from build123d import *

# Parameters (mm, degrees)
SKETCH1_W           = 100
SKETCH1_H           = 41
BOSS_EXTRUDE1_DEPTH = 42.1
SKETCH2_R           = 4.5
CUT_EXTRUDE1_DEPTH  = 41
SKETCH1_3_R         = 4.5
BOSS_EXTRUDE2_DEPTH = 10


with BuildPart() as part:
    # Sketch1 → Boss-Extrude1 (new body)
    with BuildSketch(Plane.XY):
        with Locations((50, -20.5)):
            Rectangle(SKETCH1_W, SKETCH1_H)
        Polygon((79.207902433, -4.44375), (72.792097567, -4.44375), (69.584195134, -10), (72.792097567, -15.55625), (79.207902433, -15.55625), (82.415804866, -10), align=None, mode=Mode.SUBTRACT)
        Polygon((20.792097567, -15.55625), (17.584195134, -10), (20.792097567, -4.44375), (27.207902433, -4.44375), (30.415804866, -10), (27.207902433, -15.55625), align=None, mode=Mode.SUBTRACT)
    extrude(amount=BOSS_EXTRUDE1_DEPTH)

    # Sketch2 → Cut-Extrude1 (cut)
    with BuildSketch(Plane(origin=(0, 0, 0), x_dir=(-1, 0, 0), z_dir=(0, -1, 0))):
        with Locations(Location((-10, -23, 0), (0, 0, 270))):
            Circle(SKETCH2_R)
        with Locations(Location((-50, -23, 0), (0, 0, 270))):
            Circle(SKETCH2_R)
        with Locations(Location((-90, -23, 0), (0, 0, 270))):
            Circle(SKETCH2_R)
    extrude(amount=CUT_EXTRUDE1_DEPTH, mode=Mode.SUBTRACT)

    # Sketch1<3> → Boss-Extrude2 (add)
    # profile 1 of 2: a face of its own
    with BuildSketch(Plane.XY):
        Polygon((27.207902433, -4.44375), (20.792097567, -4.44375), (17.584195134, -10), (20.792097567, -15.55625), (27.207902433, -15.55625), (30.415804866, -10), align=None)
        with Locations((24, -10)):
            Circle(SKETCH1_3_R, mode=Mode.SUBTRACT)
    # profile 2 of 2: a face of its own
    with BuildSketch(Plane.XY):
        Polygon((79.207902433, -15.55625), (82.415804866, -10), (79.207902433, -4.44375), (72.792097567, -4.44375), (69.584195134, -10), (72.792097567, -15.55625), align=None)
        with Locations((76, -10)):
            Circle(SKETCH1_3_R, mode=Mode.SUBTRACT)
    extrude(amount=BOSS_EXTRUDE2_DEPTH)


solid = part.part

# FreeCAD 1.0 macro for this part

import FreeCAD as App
import Part
import Sketcher
Q = App.Units.Quantity

doc = App.newDocument("Part")
body = doc.addObject("PartDesign::Body", "Body")

sketch1 = doc.addObject("Sketcher::SketchObject", "Sketch")
body.addObject(sketch1)
sketch1.AttachmentSupport = (doc.XY_Plane, [""])
sketch1.MapMode = "FlatFace"
sketch1.addGeometry(Part.LineSegment(App.Vector(0, 0, 0), App.Vector(0, -41, 0)), False)
sketch1.addGeometry(Part.LineSegment(App.Vector(0, -41, 0), App.Vector(100, -41, 0)), False)
sketch1.addGeometry(Part.LineSegment(App.Vector(100, -41, 0), App.Vector(100, 0, 0)), False)
sketch1.addGeometry(Part.LineSegment(App.Vector(100, 0, 0), App.Vector(0, 0, 0)), False)
sketch1.addGeometry(Part.LineSegment(App.Vector(27, -16, 0), App.Vector(21, -16, 0)), False)
sketch1.addGeometry(Part.LineSegment(App.Vector(21, -16, 0), App.Vector(18, -10, 0)), False)
sketch1.addGeometry(Part.LineSegment(App.Vector(18, -10, 0), App.Vector(21, -4, 0)), False)
sketch1.addGeometry(Part.LineSegment(App.Vector(21, -4, 0), App.Vector(27, -4, 0)), False)
sketch1.addGeometry(Part.LineSegment(App.Vector(27, -4, 0), App.Vector(30, -10, 0)), False)
sketch1.addGeometry(Part.LineSegment(App.Vector(30, -10, 0), App.Vector(27, -16, 0)), False)
sketch1.addGeometry(Part.LineSegment(App.Vector(73, -4, 0), App.Vector(79, -4, 0)), False)
sketch1.addGeometry(Part.LineSegment(App.Vector(79, -4, 0), App.Vector(82, -10, 0)), False)
sketch1.addGeometry(Part.LineSegment(App.Vector(82, -10, 0), App.Vector(79, -16, 0)), False)
sketch1.addGeometry(Part.LineSegment(App.Vector(79, -16, 0), App.Vector(73, -16, 0)), False)
sketch1.addGeometry(Part.LineSegment(App.Vector(73, -16, 0), App.Vector(70, -10, 0)), False)
sketch1.addGeometry(Part.LineSegment(App.Vector(70, -10, 0), App.Vector(73, -4, 0)), False)
sketch1.addConstraint(Sketcher.Constraint("Coincident", 0, 2, 1, 1))
sketch1.addConstraint(Sketcher.Constraint("Coincident", 1, 2, 2, 1))
sketch1.addConstraint(Sketcher.Constraint("Coincident", 2, 2, 3, 1))
sketch1.addConstraint(Sketcher.Constraint("Coincident", 3, 2, 0, 1))
sketch1.addConstraint(Sketcher.Constraint("Coincident", 4, 2, 5, 1))
sketch1.addConstraint(Sketcher.Constraint("Coincident", 5, 2, 6, 1))
sketch1.addConstraint(Sketcher.Constraint("Coincident", 6, 2, 7, 1))
sketch1.addConstraint(Sketcher.Constraint("Coincident", 7, 2, 8, 1))
sketch1.addConstraint(Sketcher.Constraint("Coincident", 8, 2, 9, 1))
sketch1.addConstraint(Sketcher.Constraint("Coincident", 9, 2, 4, 1))
sketch1.addConstraint(Sketcher.Constraint("Coincident", 10, 2, 11, 1))
sketch1.addConstraint(Sketcher.Constraint("Coincident", 11, 2, 12, 1))
sketch1.addConstraint(Sketcher.Constraint("Coincident", 12, 2, 13, 1))
sketch1.addConstraint(Sketcher.Constraint("Coincident", 13, 2, 14, 1))
sketch1.addConstraint(Sketcher.Constraint("Coincident", 14, 2, 15, 1))
sketch1.addConstraint(Sketcher.Constraint("Coincident", 15, 2, 10, 1))
sketch1.addConstraint(Sketcher.Constraint("Vertical", 0))
sketch1.addConstraint(Sketcher.Constraint("Horizontal", 1))
sketch1.addConstraint(Sketcher.Constraint("Vertical", 2))
sketch1.addConstraint(Sketcher.Constraint("Horizontal", 3))
sketch1.addConstraint(Sketcher.Constraint("Horizontal", 4))
sketch1.addConstraint(Sketcher.Constraint("Horizontal", 7))
sketch1.addConstraint(Sketcher.Constraint("Horizontal", 10))
sketch1.addConstraint(Sketcher.Constraint("Horizontal", 13))
sketch1.addConstraint(Sketcher.Constraint("Coincident", 3, 2, -1, 1))
sketch1.addConstraint(Sketcher.Constraint("Parallel", 5, 8))
sketch1.addConstraint(Sketcher.Constraint("Parallel", 6, 9))
sketch1.addConstraint(Sketcher.Constraint("Parallel", 8, 11))
sketch1.addConstraint(Sketcher.Constraint("Parallel", 9, 12))
sketch1.addConstraint(Sketcher.Constraint("Parallel", 11, 14))
sketch1.addConstraint(Sketcher.Constraint("Parallel", 12, 15))
sketch1.addConstraint(Sketcher.Constraint("Horizontal", 5, 2, 8, 2))
sketch1.addConstraint(Sketcher.Constraint("Horizontal", 7, 2, 10, 2))
sketch1.addConstraint(Sketcher.Constraint("Horizontal", 8, 2, 11, 2))
sketch1.addConstraint(Sketcher.Constraint("Horizontal", 9, 2, 12, 2))
sketch1.addConstraint(Sketcher.Constraint("Horizontal", 11, 2, 14, 2))
sketch1.addConstraint(Sketcher.Constraint("Vertical", 4, 2, 6, 2))
sketch1.addConstraint(Sketcher.Constraint("Vertical", 7, 2, 9, 2))
sketch1.addConstraint(Sketcher.Constraint("Equal", 7, 10))
sketch1.addConstraint(Sketcher.Constraint("DistanceX", 1, 1, 1, 2, Q("100 mm")))
sketch1.addConstraint(Sketcher.Constraint("DistanceY", 0, 2, 0, 1, Q("41 mm")))
sketch1.addConstraint(Sketcher.Constraint("Angle", 5, Q("120 deg")))
sketch1.addConstraint(Sketcher.Constraint("DistanceY", 5, 2, -1, 1, Q("10 mm")))
sketch1.addConstraint(Sketcher.Constraint("DistanceX", 7, 2, 10, 2, Q("52 mm")))
sketch1.addConstraint(Sketcher.Constraint("DistanceY", 4, 2, 6, 2, Q("11.1125 mm")))
sketch1.addConstraint(Sketcher.Constraint("DistanceX", 4, 2, 4, 1, Q("6.415805 mm")))
sketch1.addConstraint(Sketcher.Constraint("DistanceX", -1, 1, 4, 2, Q("20.792098 mm")))
pad1 = doc.addObject("PartDesign::Pad", "Pad")
body.addObject(pad1)
pad1.Profile = sketch1
pad1.Length = 42.1

sketch2 = doc.addObject("Sketcher::SketchObject", "Sketch001")
body.addObject(sketch2)
sketch2.AttachmentSupport = (doc.XZ_Plane, [""])
sketch2.MapMode = "FlatFace"
sketch2.addGeometry(Part.Circle(App.Vector(10, 23, 0), App.Vector(0, 0, 1), 4.5), False)
sketch2.addGeometry(Part.Circle(App.Vector(50, 23, 0), App.Vector(0, 0, 1), 4.5), False)
sketch2.addGeometry(Part.Circle(App.Vector(90, 23, 0), App.Vector(0, 0, 1), 4.5), False)
sketch2.addConstraint(Sketcher.Constraint("Equal", 0, 1))
sketch2.addConstraint(Sketcher.Constraint("Equal", 1, 2))
sketch2.addConstraint(Sketcher.Constraint("Horizontal", 0, 3, 1, 3))
sketch2.addConstraint(Sketcher.Constraint("Horizontal", 1, 3, 2, 3))
sketch2.addConstraint(Sketcher.Constraint("Diameter", 0, Q("9 mm")))
sketch2.addConstraint(Sketcher.Constraint("DistanceX", -1, 1, 0, 3, Q("10 mm")))
sketch2.addConstraint(Sketcher.Constraint("DistanceY", -1, 1, 0, 3, Q("23 mm")))
sketch2.addConstraint(Sketcher.Constraint("DistanceX", -1, 1, 1, 3, Q("50 mm")))
sketch2.addConstraint(Sketcher.Constraint("DistanceX", -1, 1, 2, 3, Q("90 mm")))
pocket1 = doc.addObject("PartDesign::Pocket", "Pocket")
body.addObject(pocket1)
pocket1.Profile = sketch2
pocket1.Length = 41
pocket1.Reversed = True

sketch3 = doc.addObject("Sketcher::SketchObject", "Sketch002")
body.addObject(sketch3)
sketch3.AttachmentSupport = (doc.XY_Plane, [""])
sketch3.MapMode = "FlatFace"
sketch3.addGeometry(Part.LineSegment(App.Vector(27.2, -4.4, 0), App.Vector(20.8, -4.4, 0)), False)
sketch3.addGeometry(Part.LineSegment(App.Vector(20.8, -4.4, 0), App.Vector(17.6, -10, 0)), False)
sketch3.addGeometry(Part.LineSegment(App.Vector(17.6, -10, 0), App.Vector(20.8, -15.6, 0)), False)
sketch3.addGeometry(Part.LineSegment(App.Vector(20.8, -15.6, 0), App.Vector(27.2, -15.6, 0)), False)
sketch3.addGeometry(Part.LineSegment(App.Vector(27.2, -15.6, 0), App.Vector(30.4, -10, 0)), False)
sketch3.addGeometry(Part.LineSegment(App.Vector(30.4, -10, 0), App.Vector(27.2, -4.4, 0)), False)
sketch3.addGeometry(Part.Circle(App.Vector(24, -10, 0), App.Vector(0, 0, 1), 4.5), False)
sketch3.addGeometry(Part.LineSegment(App.Vector(79.2, -15.6, 0), App.Vector(82.4, -10, 0)), False)
sketch3.addGeometry(Part.LineSegment(App.Vector(82.4, -10, 0), App.Vector(79.2, -4.4, 0)), False)
sketch3.addGeometry(Part.LineSegment(App.Vector(79.2, -4.4, 0), App.Vector(72.8, -4.4, 0)), False)
sketch3.addGeometry(Part.LineSegment(App.Vector(72.8, -4.4, 0), App.Vector(69.6, -10, 0)), False)
sketch3.addGeometry(Part.LineSegment(App.Vector(69.6, -10, 0), App.Vector(72.8, -15.6, 0)), False)
sketch3.addGeometry(Part.LineSegment(App.Vector(72.8, -15.6, 0), App.Vector(79.2, -15.6, 0)), False)
sketch3.addGeometry(Part.Circle(App.Vector(76, -10, 0), App.Vector(0, 0, 1), 4.5), False)
sketch3.addConstraint(Sketcher.Constraint("Coincident", 0, 2, 1, 1))
sketch3.addConstraint(Sketcher.Constraint("Coincident", 1, 2, 2, 1))
sketch3.addConstraint(Sketcher.Constraint("Coincident", 2, 2, 3, 1))
sketch3.addConstraint(Sketcher.Constraint("Coincident", 3, 2, 4, 1))
sketch3.addConstraint(Sketcher.Constraint("Coincident", 4, 2, 5, 1))
sketch3.addConstraint(Sketcher.Constraint("Coincident", 5, 2, 0, 1))
sketch3.addConstraint(Sketcher.Constraint("Coincident", 7, 2, 8, 1))
sketch3.addConstraint(Sketcher.Constraint("Coincident", 8, 2, 9, 1))
sketch3.addConstraint(Sketcher.Constraint("Coincident", 9, 2, 10, 1))
sketch3.addConstraint(Sketcher.Constraint("Coincident", 10, 2, 11, 1))
sketch3.addConstraint(Sketcher.Constraint("Coincident", 11, 2, 12, 1))
sketch3.addConstraint(Sketcher.Constraint("Coincident", 12, 2, 7, 1))
sketch3.addConstraint(Sketcher.Constraint("Horizontal", 0))
sketch3.addConstraint(Sketcher.Constraint("Horizontal", 3))
sketch3.addConstraint(Sketcher.Constraint("Horizontal", 9))
sketch3.addConstraint(Sketcher.Constraint("Horizontal", 12))
sketch3.addConstraint(Sketcher.Constraint("Equal", 6, 13))
sketch3.addConstraint(Sketcher.Constraint("Parallel", 1, 4))
sketch3.addConstraint(Sketcher.Constraint("Parallel", 2, 5))
sketch3.addConstraint(Sketcher.Constraint("Parallel", 4, 7))
sketch3.addConstraint(Sketcher.Constraint("Parallel", 5, 8))
sketch3.addConstraint(Sketcher.Constraint("Parallel", 7, 10))
sketch3.addConstraint(Sketcher.Constraint("Parallel", 8, 11))
sketch3.addConstraint(Sketcher.Constraint("Horizontal", 6, 3, 13, 3))
sketch3.addConstraint(Sketcher.Constraint("Horizontal", 13, 3, 1, 2))
sketch3.addConstraint(Sketcher.Constraint("Horizontal", 1, 2, 4, 2))
sketch3.addConstraint(Sketcher.Constraint("Horizontal", 4, 2, 7, 2))
sketch3.addConstraint(Sketcher.Constraint("Horizontal", 5, 2, 8, 2))
sketch3.addConstraint(Sketcher.Constraint("Horizontal", 7, 2, 10, 2))
sketch3.addConstraint(Sketcher.Constraint("Horizontal", 3, 2, 11, 2))
sketch3.addConstraint(Sketcher.Constraint("Vertical", 0, 2, 2, 2))
sketch3.addConstraint(Sketcher.Constraint("Vertical", 3, 2, 5, 2))
sketch3.addConstraint(Sketcher.Constraint("Equal", 3, 9))
sketch3.addConstraint(Sketcher.Constraint("Diameter", 6, Q("9 mm")))
sketch3.addConstraint(Sketcher.Constraint("Angle", 1, Q("-120 deg")))
sketch3.addConstraint(Sketcher.Constraint("DistanceX", -1, 1, 6, 3, Q("24 mm")))
sketch3.addConstraint(Sketcher.Constraint("DistanceY", 6, 3, -1, 1, Q("10 mm")))
sketch3.addConstraint(Sketcher.Constraint("DistanceX", -1, 1, 13, 3, Q("76 mm")))
sketch3.addConstraint(Sketcher.Constraint("DistanceX", 4, 2, 7, 2, Q("52 mm")))
sketch3.addConstraint(Sketcher.Constraint("DistanceY", 2, 2, 0, 2, Q("11.1125 mm")))
sketch3.addConstraint(Sketcher.Constraint("DistanceX", 0, 2, 0, 1, Q("6.415805 mm")))
sketch3.addConstraint(Sketcher.Constraint("DistanceX", -1, 1, 0, 2, Q("20.792098 mm")))
pad2 = doc.addObject("PartDesign::Pad", "Pad001")
body.addObject(pad2)
pad2.Profile = sketch3
pad2.Length = 10

doc.recompute()
